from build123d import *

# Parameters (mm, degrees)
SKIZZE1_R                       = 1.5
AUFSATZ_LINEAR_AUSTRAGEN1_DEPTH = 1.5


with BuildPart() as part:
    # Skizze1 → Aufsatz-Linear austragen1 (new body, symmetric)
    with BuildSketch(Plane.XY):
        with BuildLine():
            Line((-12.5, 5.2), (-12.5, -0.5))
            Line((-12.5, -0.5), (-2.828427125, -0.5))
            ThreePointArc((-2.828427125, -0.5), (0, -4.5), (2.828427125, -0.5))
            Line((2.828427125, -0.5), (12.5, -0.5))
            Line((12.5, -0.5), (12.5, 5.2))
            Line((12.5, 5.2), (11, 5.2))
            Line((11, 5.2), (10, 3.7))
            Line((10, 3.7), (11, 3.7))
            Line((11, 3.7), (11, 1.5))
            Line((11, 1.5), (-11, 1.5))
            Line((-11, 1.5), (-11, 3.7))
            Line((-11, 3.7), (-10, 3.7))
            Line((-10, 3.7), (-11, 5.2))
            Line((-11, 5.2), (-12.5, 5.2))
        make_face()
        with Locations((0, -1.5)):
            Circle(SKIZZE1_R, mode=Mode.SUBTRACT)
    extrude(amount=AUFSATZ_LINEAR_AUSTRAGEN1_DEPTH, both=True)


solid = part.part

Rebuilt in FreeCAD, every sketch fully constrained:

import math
import FreeCAD as App
import Part
import Sketcher
Q = App.Units.Quantity

doc = App.newDocument("Part")
body = doc.addObject("PartDesign::Body", "Body")

# Sketch on XY plane
sketch1 = body.newObject("Sketcher::SketchObject", "Sketch")
sketch1.AttachmentSupport = (doc.getObject("XY_Plane"), [""])
sketch1.MapMode = "FlatFace"
sketch1.addGeometry(Part.LineSegment(App.Vector(-12.5, 5.2, 0), App.Vector(-12.5, -0.5, 0)), False)
sketch1.addGeometry(Part.LineSegment(App.Vector(-12.5, -0.5, 0), App.Vector(-2.8, -0.5, 0)), False)
sketch1.addGeometry(Part.ArcOfCircle(Part.Circle(App.Vector(0, -1.5, 0), App.Vector(0, 0, 1), 3), math.radians(161), math.radians(379)), False)
sketch1.addGeometry(Part.LineSegment(App.Vector(2.8, -0.5, 0), App.Vector(12.5, -0.5, 0)), False)
sketch1.addGeometry(Part.LineSegment(App.Vector(12.5, -0.5, 0), App.Vector(12.5, 5.2, 0)), False)
sketch1.addGeometry(Part.LineSegment(App.Vector(12.5, 5.2, 0), App.Vector(11, 5.2, 0)), False)
sketch1.addGeometry(Part.LineSegment(App.Vector(11, 5.2, 0), App.Vector(10, 3.7, 0)), False)
sketch1.addGeometry(Part.LineSegment(App.Vector(10, 3.7, 0), App.Vector(11, 3.7, 0)), False)
sketch1.addGeometry(Part.LineSegment(App.Vector(11, 3.7, 0), App.Vector(11, 1.5, 0)), False)
sketch1.addGeometry(Part.LineSegment(App.Vector(11, 1.5, 0), App.Vector(-11, 1.5, 0)), False)
sketch1.addGeometry(Part.LineSegment(App.Vector(-11, 1.5, 0), App.Vector(-11, 3.7, 0)), False)
sketch1.addGeometry(Part.LineSegment(App.Vector(-11, 3.7, 0), App.Vector(-10, 3.7, 0)), False)
sketch1.addGeometry(Part.LineSegment(App.Vector(-10, 3.7, 0), App.Vector(-11, 5.2, 0)), False)
sketch1.addGeometry(Part.LineSegment(App.Vector(-11, 5.2, 0), App.Vector(-12.5, 5.2, 0)), False)
sketch1.addGeometry(Part.Circle(App.Vector(0, -1.5, 0), App.Vector(0, 0, 1), 1.5), False)
sketch1.addConstraint(Sketcher.Constraint("Coincident", 0, 2, 1, 1))
sketch1.addConstraint(Sketcher.Constraint("Coincident", 1, 2, 2, 1))
sketch1.addConstraint(Sketcher.Constraint("Coincident", 2, 2, 3, 1))
sketch1.addConstraint(Sketcher.Constraint("Coincident", 3, 2, 4, 1))
sketch1.addConstraint(Sketcher.Constraint("Coincident", 4, 2, 5, 1))
sketch1.addConstraint(Sketcher.Constraint("Coincident", 5, 2, 6, 1))
sketch1.addConstraint(Sketcher.Constraint("Coincident", 6, 2, 7, 1))
sketch1.addConstraint(Sketcher.Constraint("Coincident", 7, 2, 8, 1))
sketch1.addConstraint(Sketcher.Constraint("Coincident", 8, 2, 9, 1))
sketch1.addConstraint(Sketcher.Constraint("Coincident", 9, 2, 10, 1))
sketch1.addConstraint(Sketcher.Constraint("Coincident", 10, 2, 11, 1))
sketch1.addConstraint(Sketcher.Constraint("Coincident", 11, 2, 12, 1))
sketch1.addConstraint(Sketcher.Constraint("Coincident", 12, 2, 13, 1))
sketch1.addConstraint(Sketcher.Constraint("Coincident", 13, 2, 0, 1))
sketch1.addConstraint(Sketcher.Constraint("Vertical", 0))
sketch1.addConstraint(Sketcher.Constraint("Horizontal", 1))
sketch1.addConstraint(Sketcher.Constraint("Horizontal", 3))
sketch1.addConstraint(Sketcher.Constraint("Vertical", 4))
sketch1.addConstraint(Sketcher.Constraint("Horizontal", 5))
sketch1.addConstraint(Sketcher.Constraint("Horizontal", 7))
sketch1.addConstraint(Sketcher.Constraint("Vertical", 8))
sketch1.addConstraint(Sketcher.Constraint("Horizontal", 9))
sketch1.addConstraint(Sketcher.Constraint("Vertical", 10))
sketch1.addConstraint(Sketcher.Constraint("Horizontal", 11))
sketch1.addConstraint(Sketcher.Constraint("Horizontal", 13))
sketch1.addConstraint(Sketcher.Constraint("Coincident", 14, 3, 2, 3))
sketch1.addConstraint(Sketcher.Constraint("Symmetric", 1, 2, 2, 2, -2))
sketch1.addConstraint(Sketcher.Constraint("Symmetric", 7, 2, 10, 2, -2))
sketch1.addConstraint(Sketcher.Constraint("Symmetric", 5, 2, 12, 2, -2))
sketch1.addConstraint(Sketcher.Constraint("Vertical", 5, 2, 7, 2))
sketch1.addConstraint(Sketcher.Constraint("Equal", 1, 3))
sketch1.addConstraint(Sketcher.Constraint("Equal", 7, 11))
sketch1.addConstraint(Sketcher.Constraint("Diameter", 14, Q("3 mm")))
sketch1.addConstraint(Sketcher.Constraint("Radius", 2, Q("3 mm")))
sketch1.addConstraint(Sketcher.Constraint("DistanceX", 7, 1, 7, 2, Q("1 mm")))
sketch1.addConstraint(Sketcher.Constraint("DistanceX", 9, 2, 9, 1, Q("22 mm")))
sketch1.addConstraint(Sketcher.Constraint("DistanceX", 5, 2, 5, 1, Q("1.5 mm")))
sketch1.addConstraint(Sketcher.Constraint("DistanceY", 0, 2, 0, 1, Q("5.7 mm")))
sketch1.addConstraint(Sketcher.Constraint("DistanceY", 8, 2, 8, 1, Q("2.2 mm")))
sketch1.addConstraint(Sketcher.Constraint("DistanceY", 2, 3, 0, 2, Q("1 mm")))
sketch1.addConstraint(Sketcher.Constraint("DistanceY", 3, 2, 8, 2, Q("2 mm")))
sketch1.addConstraint(Sketcher.Constraint("DistanceY", 2, 3, -1, 1, Q("1.5 mm")))
pad1 = body.newObject("PartDesign::Pad", "Pad")
pad1.Profile = sketch1
pad1.Length = 3
pad1.Midplane = True

doc.recompute()
